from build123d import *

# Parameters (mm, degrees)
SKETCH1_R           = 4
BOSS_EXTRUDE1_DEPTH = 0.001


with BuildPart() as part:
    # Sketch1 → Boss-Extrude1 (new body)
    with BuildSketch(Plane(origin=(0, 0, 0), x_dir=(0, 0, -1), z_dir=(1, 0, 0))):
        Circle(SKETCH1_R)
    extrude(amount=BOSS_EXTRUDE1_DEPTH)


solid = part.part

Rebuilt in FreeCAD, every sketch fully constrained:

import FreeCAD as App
import Part
import Sketcher
from FreeCAD import Vector

doc = App.newDocument("Part")
body = doc.addObject("PartDesign::Body", "Body")

# Sketch on YZ plane
sketch1 = body.newObject("Sketcher::SketchObject", "Sketch")
sketch1.AttachmentSupport = (doc.getObject("YZ_Plane"), [""])
sketch1.MapMode = "FlatFace"
sketch1.addGeometry(Part.Circle(Vector(0, 0, 0), Vector(0, 0, 1), 4), False)
sketch1.addConstraint([
    Sketcher.Constraint("Coincident", 0, 3, -1, 1),
    Sketcher.Constraint("Diameter", 0, 8.0),
])
pad1 = body.newObject("PartDesign::Pad", "Pad")
pad1.Profile = sketch1
pad1.Length = 0.001

doc.recompute()
